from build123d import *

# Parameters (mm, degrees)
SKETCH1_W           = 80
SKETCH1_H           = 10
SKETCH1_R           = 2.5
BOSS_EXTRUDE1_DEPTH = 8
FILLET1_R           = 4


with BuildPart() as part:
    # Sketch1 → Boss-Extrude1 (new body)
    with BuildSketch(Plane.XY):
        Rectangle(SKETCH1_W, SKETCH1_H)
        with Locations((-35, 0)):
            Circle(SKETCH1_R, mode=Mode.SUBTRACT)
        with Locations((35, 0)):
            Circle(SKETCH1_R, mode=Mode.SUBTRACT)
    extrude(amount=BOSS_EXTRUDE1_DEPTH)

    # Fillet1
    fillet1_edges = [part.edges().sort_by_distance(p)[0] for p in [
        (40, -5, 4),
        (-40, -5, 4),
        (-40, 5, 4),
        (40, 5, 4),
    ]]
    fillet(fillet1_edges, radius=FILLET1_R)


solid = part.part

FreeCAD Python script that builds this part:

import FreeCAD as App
import Part
import Sketcher

V = App.Vector


def edges_at(feature, points):
    """Names of the edges that pass closest to the given points."""
    edges = feature.Shape.Edges
    near = lambda p: min(range(len(edges)), key=lambda i: edges[i].distToShape(Part.Vertex(*p))[0])
    return sorted({f"Edge{near(p) + 1}" for p in points})


def add_polygon(sketch, points):
    """Adds a closed chain of lines whose ends are joined by coincident constraints."""
    first, n = sketch.GeometryCount, len(points)
    for a, b in zip(points, points[1:] + points[:1]):
        sketch.addGeometry(Part.LineSegment(App.Vector(*a, 0), App.Vector(*b, 0)), False)
    for i in range(n):
        sketch.addConstraint(Sketcher.Constraint("Coincident", first + i, 2, first + (i + 1) % n, 1))

doc = App.newDocument("Part")
body = doc.addObject("PartDesign::Body", "Body")

# Sketch on XY plane
sketch1 = body.newObject("Sketcher::SketchObject", "Sketch")
sketch1.AttachmentSupport = (doc.getObject("XY_Plane"), [""])
sketch1.MapMode = "FlatFace"
add_polygon(sketch1, [(-40, 5), (-40, -5), (40, -5), (40, 5)])  # lines 0-3
sketch1.addGeometry(Part.Circle(V(-35, 0, 0), V(0, 0, 1), 2.5), False)  # 4
sketch1.addGeometry(Part.Circle(V(35, 0, 0), V(0, 0, 1), 2.5), False)  # 5
sketch1.addConstraint([
    Sketcher.Constraint("Vertical", 0),
    Sketcher.Constraint("Horizontal", 1),
    Sketcher.Constraint("Vertical", 2),
    Sketcher.Constraint("Horizontal", 3),
    Sketcher.Constraint("Equal", 4, 5),
    Sketcher.Constraint("Symmetric", 4, 3, 5, 3, -1, 1),
    Sketcher.Constraint("Symmetric", 0, 2, 2, 2, -1, 1),
    Sketcher.Constraint("PointOnObject", 4, 3, -1),
    Sketcher.Constraint("Diameter", 4, 5.0),
    Sketcher.Constraint("DistanceX", 1, 1, 1, 2, 80.0),
    Sketcher.Constraint("DistanceY", 0, 2, 0, 1, 10.0),
    Sketcher.Constraint("DistanceX", 4, 3, -1, 1, 35.0),
])
pad1 = body.newObject("PartDesign::Pad", "Pad")
pad1.Profile = sketch1
pad1.Length = 8
doc.recompute()

fillet = body.newObject("PartDesign::Fillet", "Fillet")
fillet.Base = (pad1, edges_at(pad1, [
    (40, -5, 4),
    (-40, -5, 4),
    (-40, 5, 4),
    (40, 5, 4),
]))
fillet.Radius = 4

doc.recompute()
